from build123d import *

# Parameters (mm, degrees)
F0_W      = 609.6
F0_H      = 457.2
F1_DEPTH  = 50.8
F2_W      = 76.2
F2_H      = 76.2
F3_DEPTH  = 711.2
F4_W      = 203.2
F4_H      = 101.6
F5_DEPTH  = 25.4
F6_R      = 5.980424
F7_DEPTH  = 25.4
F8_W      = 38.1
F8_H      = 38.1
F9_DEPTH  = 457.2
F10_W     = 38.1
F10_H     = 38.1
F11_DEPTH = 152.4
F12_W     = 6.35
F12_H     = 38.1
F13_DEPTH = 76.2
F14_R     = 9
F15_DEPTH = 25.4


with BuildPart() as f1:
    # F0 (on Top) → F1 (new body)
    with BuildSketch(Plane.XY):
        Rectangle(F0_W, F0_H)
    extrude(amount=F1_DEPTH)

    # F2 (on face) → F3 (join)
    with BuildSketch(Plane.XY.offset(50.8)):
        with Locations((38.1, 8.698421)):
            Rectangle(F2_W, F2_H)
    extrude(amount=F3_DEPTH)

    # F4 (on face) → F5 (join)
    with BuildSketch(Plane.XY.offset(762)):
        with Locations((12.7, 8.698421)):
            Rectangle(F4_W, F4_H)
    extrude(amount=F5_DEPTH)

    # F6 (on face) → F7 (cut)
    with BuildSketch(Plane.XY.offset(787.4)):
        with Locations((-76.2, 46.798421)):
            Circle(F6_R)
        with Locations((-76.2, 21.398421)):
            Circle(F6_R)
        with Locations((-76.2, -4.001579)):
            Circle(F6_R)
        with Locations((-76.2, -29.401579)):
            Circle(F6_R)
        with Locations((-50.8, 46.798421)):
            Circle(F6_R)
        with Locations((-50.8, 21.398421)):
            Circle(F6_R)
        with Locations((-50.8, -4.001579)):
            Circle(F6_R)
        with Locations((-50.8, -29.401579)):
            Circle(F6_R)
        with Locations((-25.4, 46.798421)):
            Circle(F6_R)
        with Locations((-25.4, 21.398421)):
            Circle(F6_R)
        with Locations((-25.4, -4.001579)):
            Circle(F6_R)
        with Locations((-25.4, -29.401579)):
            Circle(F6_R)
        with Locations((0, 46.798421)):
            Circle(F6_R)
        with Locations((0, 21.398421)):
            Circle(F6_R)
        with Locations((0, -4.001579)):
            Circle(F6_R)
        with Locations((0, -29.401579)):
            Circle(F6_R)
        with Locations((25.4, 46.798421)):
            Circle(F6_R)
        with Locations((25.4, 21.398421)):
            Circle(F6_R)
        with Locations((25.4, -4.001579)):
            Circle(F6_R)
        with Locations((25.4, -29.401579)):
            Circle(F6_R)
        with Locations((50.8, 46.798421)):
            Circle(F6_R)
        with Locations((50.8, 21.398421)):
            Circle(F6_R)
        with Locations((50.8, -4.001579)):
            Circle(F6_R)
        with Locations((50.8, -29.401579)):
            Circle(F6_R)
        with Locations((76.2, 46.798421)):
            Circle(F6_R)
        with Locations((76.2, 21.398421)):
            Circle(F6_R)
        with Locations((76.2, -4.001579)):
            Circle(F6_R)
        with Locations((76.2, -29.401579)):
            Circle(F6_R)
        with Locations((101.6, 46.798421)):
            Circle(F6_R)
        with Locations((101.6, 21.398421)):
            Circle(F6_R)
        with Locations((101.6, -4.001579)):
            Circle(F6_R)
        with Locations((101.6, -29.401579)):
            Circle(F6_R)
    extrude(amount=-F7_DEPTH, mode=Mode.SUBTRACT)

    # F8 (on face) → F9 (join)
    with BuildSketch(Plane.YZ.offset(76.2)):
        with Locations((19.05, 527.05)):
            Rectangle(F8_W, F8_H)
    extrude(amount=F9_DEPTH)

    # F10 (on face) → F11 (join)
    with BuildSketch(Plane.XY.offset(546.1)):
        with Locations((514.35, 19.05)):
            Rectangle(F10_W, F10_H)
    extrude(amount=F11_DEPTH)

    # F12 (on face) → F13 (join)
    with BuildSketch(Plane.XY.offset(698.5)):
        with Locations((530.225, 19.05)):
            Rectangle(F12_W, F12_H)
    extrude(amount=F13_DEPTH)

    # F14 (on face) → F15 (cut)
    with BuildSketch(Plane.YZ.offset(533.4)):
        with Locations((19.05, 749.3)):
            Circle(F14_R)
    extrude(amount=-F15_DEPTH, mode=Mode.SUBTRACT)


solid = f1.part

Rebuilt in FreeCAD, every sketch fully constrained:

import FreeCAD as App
import Part
import Sketcher
Q = App.Units.Quantity

doc = App.newDocument("Part")
body = doc.addObject("PartDesign::Body", "Body")

# Sketch on XY plane
sketch1 = body.newObject("Sketcher::SketchObject", "Sketch")
sketch1.AttachmentSupport = (doc.getObject("XY_Plane"), [""])
sketch1.MapMode = "FlatFace"
sketch1.addGeometry([
    Part.LineSegment(App.Vector(-305, 229, 0), App.Vector(-305, -229, 0)),
    Part.LineSegment(App.Vector(-305, -229, 0), App.Vector(305, -229, 0)),
    Part.LineSegment(App.Vector(305, -229, 0), App.Vector(305, 229, 0)),
    Part.LineSegment(App.Vector(305, 229, 0), App.Vector(-305, 229, 0)),
], False)
sketch1.addConstraint([
    Sketcher.Constraint("Coincident", 0, 2, 1, 1),
    Sketcher.Constraint("Coincident", 1, 2, 2, 1),
    Sketcher.Constraint("Coincident", 2, 2, 3, 1),
    Sketcher.Constraint("Coincident", 3, 2, 0, 1),
    Sketcher.Constraint("Vertical", 0),
    Sketcher.Constraint("Horizontal", 1),
    Sketcher.Constraint("Vertical", 2),
    Sketcher.Constraint("Horizontal", 3),
    Sketcher.Constraint("Symmetric", 0, 2, 2, 2, -1, 1),
    Sketcher.Constraint("DistanceX", 1, 1, 1, 2, Q("24 in")),
    Sketcher.Constraint("DistanceY", 0, 2, 0, 1, Q("18 in")),
])
pad1 = body.newObject("PartDesign::Pad", "Pad")
pad1.Profile = sketch1
pad1.Length = Q("2 in")

# Sketch on XY plane
sketch2 = body.newObject("Sketcher::SketchObject", "Sketch001")
sketch2.AttachmentSupport = (doc.getObject("XY_Plane"), [""])
sketch2.MapMode = "FlatFace"
sketch2.AttachmentOffset = App.Placement(App.Vector(0, 0, 2 * 25.4), App.Rotation())
sketch2.addGeometry([
    Part.LineSegment(App.Vector(0, 47, 0), App.Vector(0, -29, 0)),
    Part.LineSegment(App.Vector(0, -29, 0), App.Vector(76, -29, 0)),
    Part.LineSegment(App.Vector(76, -29, 0), App.Vector(76, 47, 0)),
    Part.LineSegment(App.Vector(76, 47, 0), App.Vector(0, 47, 0)),
], False)
sketch2.addConstraint([
    Sketcher.Constraint("Coincident", 0, 2, 1, 1),
    Sketcher.Constraint("Coincident", 1, 2, 2, 1),
    Sketcher.Constraint("Coincident", 2, 2, 3, 1),
    Sketcher.Constraint("Coincident", 3, 2, 0, 1),
    Sketcher.Constraint("Vertical", 0),
    Sketcher.Constraint("Horizontal", 1),
    Sketcher.Constraint("Vertical", 2),
    Sketcher.Constraint("Horizontal", 3),
    Sketcher.Constraint("PointOnObject", 0, 2, -2),
    Sketcher.Constraint("Equal", 3, 0),
    Sketcher.Constraint("DistanceX", 1, 1, 1, 2, Q("3 in")),
    Sketcher.Constraint("DistanceY", 0, 2, -1, 1, 29.401579),
])
pad2 = body.newObject("PartDesign::Pad", "Pad001")
pad2.Profile = sketch2
pad2.Length = Q("28 in")

# Sketch on XY plane
sketch3 = body.newObject("Sketcher::SketchObject", "Sketch002")
sketch3.AttachmentSupport = (doc.getObject("XY_Plane"), [""])
sketch3.MapMode = "FlatFace"
sketch3.AttachmentOffset = App.Placement(App.Vector(0, 0, 30 * 25.4), App.Rotation())
sketch3.addGeometry([
    Part.LineSegment(App.Vector(-89, 59, 0), App.Vector(-89, -42, 0)),
    Part.LineSegment(App.Vector(-89, -42, 0), App.Vector(114, -42, 0)),
    Part.LineSegment(App.Vector(114, -42, 0), App.Vector(114, 59, 0)),
    Part.LineSegment(App.Vector(114, 59, 0), App.Vector(-89, 59, 0)),
], False)
sketch3.addConstraint([
    Sketcher.Constraint("Coincident", 0, 2, 1, 1),
    Sketcher.Constraint("Coincident", 1, 2, 2, 1),
    Sketcher.Constraint("Coincident", 2, 2, 3, 1),
    Sketcher.Constraint("Coincident", 3, 2, 0, 1),
    Sketcher.Constraint("Vertical", 0),
    Sketcher.Constraint("Horizontal", 1),
    Sketcher.Constraint("Vertical", 2),
    Sketcher.Constraint("Horizontal", 3),
    Sketcher.Constraint("DistanceX", 1, 1, 1, 2, Q("8 in")),
    Sketcher.Constraint("DistanceY", 0, 2, 0, 1, Q("4 in")),
    Sketcher.Constraint("DistanceX", 0, 2, -1, 1, Q("3.5 in")),
    Sketcher.Constraint("DistanceY", 0, 2, -1, 1, 42.101579),
])
pad3 = body.newObject("PartDesign::Pad", "Pad002")
pad3.Profile = sketch3
pad3.Length = Q("1 in")

# Sketch on XY plane
sketch4 = body.newObject("Sketcher::SketchObject", "Sketch003")
sketch4.AttachmentSupport = (doc.getObject("XY_Plane"), [""])
sketch4.MapMode = "FlatFace"
sketch4.AttachmentOffset = App.Placement(App.Vector(0, 0, 31 * 25.4), App.Rotation())
sketch4.addGeometry([
    Part.Circle(App.Vector(-76, 47, 0), App.Vector(0, 0, 1), 6),  # 0
    Part.Circle(App.Vector(-76, 21, 0), App.Vector(0, 0, 1), 6),  # 1
    Part.Circle(App.Vector(-76, -4, 0), App.Vector(0, 0, 1), 6),  # 2
    Part.Circle(App.Vector(-76, -29, 0), App.Vector(0, 0, 1), 6),  # 3
    Part.Circle(App.Vector(-51, 47, 0), App.Vector(0, 0, 1), 6),  # 4
    Part.Circle(App.Vector(-51, 21, 0), App.Vector(0, 0, 1), 6),  # 5
    Part.Circle(App.Vector(-51, -4, 0), App.Vector(0, 0, 1), 6),  # 6
    Part.Circle(App.Vector(-51, -29, 0), App.Vector(0, 0, 1), 6),  # 7
    Part.Circle(App.Vector(-25, 47, 0), App.Vector(0, 0, 1), 6),  # 8
    Part.Circle(App.Vector(-25, 21, 0), App.Vector(0, 0, 1), 6),  # 9
    Part.Circle(App.Vector(-25, -4, 0), App.Vector(0, 0, 1), 6),  # 10
    Part.Circle(App.Vector(-25, -29, 0), App.Vector(0, 0, 1), 6),  # 11
    Part.Circle(App.Vector(0, 47, 0), App.Vector(0, 0, 1), 6),  # 12
    Part.Circle(App.Vector(0, 21, 0), App.Vector(0, 0, 1), 6),  # 13
    Part.Circle(App.Vector(0, -4, 0), App.Vector(0, 0, 1), 6),  # 14
    Part.Circle(App.Vector(0, -29, 0), App.Vector(0, 0, 1), 6),  # 15
    Part.Circle(App.Vector(25, 47, 0), App.Vector(0, 0, 1), 6),  # 16
    Part.Circle(App.Vector(25, 21, 0), App.Vector(0, 0, 1), 6),  # 17
    Part.Circle(App.Vector(25, -4, 0), App.Vector(0, 0, 1), 6),  # 18
    Part.Circle(App.Vector(25, -29, 0), App.Vector(0, 0, 1), 6),  # 19
    Part.Circle(App.Vector(51, 47, 0), App.Vector(0, 0, 1), 6),  # 20
    Part.Circle(App.Vector(51, 21, 0), App.Vector(0, 0, 1), 6),  # 21
    Part.Circle(App.Vector(51, -4, 0), App.Vector(0, 0, 1), 6),  # 22
    Part.Circle(App.Vector(51, -29, 0), App.Vector(0, 0, 1), 6),  # 23
    Part.Circle(App.Vector(76, 47, 0), App.Vector(0, 0, 1), 6),  # 24
    Part.Circle(App.Vector(76, 21, 0), App.Vector(0, 0, 1), 6),  # 25
    Part.Circle(App.Vector(76, -4, 0), App.Vector(0, 0, 1), 6),  # 26
    Part.Circle(App.Vector(76, -29, 0), App.Vector(0, 0, 1), 6),  # 27
    Part.Circle(App.Vector(102, 47, 0), App.Vector(0, 0, 1), 6),  # 28
    Part.Circle(App.Vector(102, 21, 0), App.Vector(0, 0, 1), 6),  # 29
    Part.Circle(App.Vector(102, -4, 0), App.Vector(0, 0, 1), 6),  # 30
    Part.Circle(App.Vector(102, -29, 0), App.Vector(0, 0, 1), 6),  # 31
], False)
sketch4.addConstraint([
    Sketcher.Constraint("Equal", 0, 1),
    Sketcher.Constraint("Equal", 1, 2),
    Sketcher.Constraint("Equal", 2, 3),
    Sketcher.Constraint("Equal", 3, 4),
    Sketcher.Constraint("Equal", 4, 5),
    Sketcher.Constraint("Equal", 5, 6),
    Sketcher.Constraint("Equal", 6, 7),
    Sketcher.Constraint("Equal", 7, 8),
    Sketcher.Constraint("Equal", 8, 9),
    Sketcher.Constraint("Equal", 9, 10),
    Sketcher.Constraint("Equal", 10, 11),
    Sketcher.Constraint("Equal", 11, 12),
    Sketcher.Constraint("Equal", 12, 13),
    Sketcher.Constraint("Equal", 13, 14),
    Sketcher.Constraint("Equal", 14, 15),
    Sketcher.Constraint("Equal", 15, 16),
    Sketcher.Constraint("Equal", 16, 17),
    Sketcher.Constraint("Equal", 17, 18),
    Sketcher.Constraint("Equal", 18, 19),
    Sketcher.Constraint("Equal", 19, 20),
    Sketcher.Constraint("Equal", 20, 21),
    Sketcher.Constraint("Equal", 21, 22),
    Sketcher.Constraint("Equal", 22, 23),
    Sketcher.Constraint("Equal", 23, 24),
    Sketcher.Constraint("Equal", 24, 25),
    Sketcher.Constraint("Equal", 25, 26),
    Sketcher.Constraint("Equal", 26, 27),
    Sketcher.Constraint("Equal", 27, 28),
    Sketcher.Constraint("Equal", 28, 29),
    Sketcher.Constraint("Equal", 29, 30),
    Sketcher.Constraint("Equal", 30, 31),
    Sketcher.Constraint("Symmetric", 8, 3, 16, 3, -2),
    Sketcher.Constraint("Symmetric", 9, 3, 17, 3, -2),
    Sketcher.Constraint("Symmetric", 10, 3, 18, 3, -2),
    Sketcher.Constraint("Symmetric", 11, 3, 19, 3, -2),
    Sketcher.Constraint("Symmetric", 4, 3, 20, 3, -2),
    Sketcher.Constraint("Symmetric", 5, 3, 21, 3, -2),
    Sketcher.Constraint("Symmetric", 6, 3, 22, 3, -2),
    Sketcher.Constraint("Symmetric", 7, 3, 23, 3, -2),
    Sketcher.Constraint("Symmetric", 0, 3, 24, 3, -2),
    Sketcher.Constraint("Symmetric", 1, 3, 25, 3, -2),
    Sketcher.Constraint("Symmetric", 2, 3, 26, 3, -2),
    Sketcher.Constraint("Symmetric", 3, 3, 27, 3, -2),
    Sketcher.Constraint("PointOnObject", 12, 3, -2),
    Sketcher.Constraint("PointOnObject", 13, 3, -2),
    Sketcher.Constraint("PointOnObject", 14, 3, -2),
    Sketcher.Constraint("PointOnObject", 15, 3, -2),
    Sketcher.Constraint("Horizontal", 0, 3, 4, 3),
    Sketcher.Constraint("Horizontal", 1, 3, 5, 3),
    Sketcher.Constraint("Horizontal", 2, 3, 6, 3),
    Sketcher.Constraint("Horizontal", 3, 3, 7, 3),
    Sketcher.Constraint("Horizontal", 4, 3, 8, 3),
    Sketcher.Constraint("Horizontal", 5, 3, 9, 3),
    Sketcher.Constraint("Horizontal", 6, 3, 10, 3),
    Sketcher.Constraint("Horizontal", 7, 3, 11, 3),
    Sketcher.Constraint("Horizontal", 8, 3, 12, 3),
    Sketcher.Constraint("Horizontal", 9, 3, 13, 3),
    Sketcher.Constraint("Horizontal", 10, 3, 14, 3),
    Sketcher.Constraint("Horizontal", 11, 3, 15, 3),
    Sketcher.Constraint("Horizontal", 24, 3, 28, 3),
    Sketcher.Constraint("Horizontal", 25, 3, 29, 3),
    Sketcher.Constraint("Horizontal", 26, 3, 30, 3),
    Sketcher.Constraint("Horizontal", 27, 3, 31, 3),
    Sketcher.Constraint("Vertical", 0, 3, 1, 3),
    Sketcher.Constraint("Vertical", 1, 3, 2, 3),
    Sketcher.Constraint("Vertical", 2, 3, 3, 3),
    Sketcher.Constraint("Vertical", 4, 3, 5, 3),
    Sketcher.Constraint("Vertical", 5, 3, 6, 3),
    Sketcher.Constraint("Vertical", 6, 3, 7, 3),
    Sketcher.Constraint("Vertical", 8, 3, 9, 3),
    Sketcher.Constraint("Vertical", 9, 3, 10, 3),
    Sketcher.Constraint("Vertical", 10, 3, 11, 3),
    Sketcher.Constraint("Vertical", 28, 3, 29, 3),
    Sketcher.Constraint("Vertical", 29, 3, 30, 3),
    Sketcher.Constraint("Vertical", 30, 3, 31, 3),
    Sketcher.Constraint("DistanceX", 0, 3, -1, 1, Q("3 in")),
    Sketcher.Constraint("DistanceX", 4, 3, -1, 1, Q("2 in")),
    Sketcher.Constraint("DistanceX", 8, 3, -1, 1, Q("1 in")),
    Sketcher.Constraint("DistanceX", -1, 1, 28, 3, Q("4 in")),
    Sketcher.Constraint("DistanceY", 1, 3, 0, 3, Q("1 in")),
    Sketcher.Constraint("DistanceY", 2, 3, 1, 3, Q("1 in")),
    Sketcher.Constraint("DistanceY", 3, 3, 2, 3, Q("1 in")),
    Sketcher.Constraint("Diameter", 0, 11.960848),
    Sketcher.Constraint("DistanceY", -1, 1, 0, 3, 46.798421),
])
pocket1 = body.newObject("PartDesign::Pocket", "Pocket")
pocket1.Profile = sketch4
pocket1.Length = Q("1 in")

# Sketch on YZ plane
sketch5 = body.newObject("Sketcher::SketchObject", "Sketch004")
sketch5.AttachmentSupport = (doc.getObject("YZ_Plane"), [""])
sketch5.MapMode = "FlatFace"
sketch5.AttachmentOffset = App.Placement(App.Vector(0, 0, 3 * 25.4), App.Rotation())
sketch5.addGeometry([
    Part.LineSegment(App.Vector(0, 546, 0), App.Vector(0, 508, 0)),
    Part.LineSegment(App.Vector(0, 508, 0), App.Vector(38, 508, 0)),
    Part.LineSegment(App.Vector(38, 508, 0), App.Vector(38, 546, 0)),
    Part.LineSegment(App.Vector(38, 546, 0), App.Vector(0, 546, 0)),
], False)
sketch5.addConstraint([
    Sketcher.Constraint("Coincident", 0, 2, 1, 1),
    Sketcher.Constraint("Coincident", 1, 2, 2, 1),
    Sketcher.Constraint("Coincident", 2, 2, 3, 1),
    Sketcher.Constraint("Coincident", 3, 2, 0, 1),
    Sketcher.Constraint("Vertical", 0),
    Sketcher.Constraint("Horizontal", 1),
    Sketcher.Constraint("Vertical", 2),
    Sketcher.Constraint("Horizontal", 3),
    Sketcher.Constraint("PointOnObject", 0, 2, -2),
    Sketcher.Constraint("Equal", 3, 0),
    Sketcher.Constraint("DistanceX", 1, 1, 1, 2, Q("1.5 in")),
    Sketcher.Constraint("DistanceY", -1, 1, 0, 2, Q("20 in")),
])
pad4 = body.newObject("PartDesign::Pad", "Pad003")
pad4.Profile = sketch5
pad4.Length = Q("18 in")

# Sketch on XY plane
sketch6 = body.newObject("Sketcher::SketchObject", "Sketch005")
sketch6.AttachmentSupport = (doc.getObject("XY_Plane"), [""])
sketch6.MapMode = "FlatFace"
sketch6.AttachmentOffset = App.Placement(App.Vector(0, 0, 21.5 * 25.4), App.Rotation())
sketch6.addGeometry([
    Part.LineSegment(App.Vector(495, 38, 0), App.Vector(495, 0, 0)),
    Part.LineSegment(App.Vector(495, 0, 0), App.Vector(533, 0, 0)),
    Part.LineSegment(App.Vector(533, 0, 0), App.Vector(533, 38, 0)),
    Part.LineSegment(App.Vector(533, 38, 0), App.Vector(495, 38, 0)),
], False)
sketch6.addConstraint([
    Sketcher.Constraint("Coincident", 0, 2, 1, 1),
    Sketcher.Constraint("Coincident", 1, 2, 2, 1),
    Sketcher.Constraint("Coincident", 2, 2, 3, 1),
    Sketcher.Constraint("Coincident", 3, 2, 0, 1),
    Sketcher.Constraint("Vertical", 0),
    Sketcher.Constraint("Horizontal", 1),
    Sketcher.Constraint("Vertical", 2),
    Sketcher.Constraint("Horizontal", 3),
    Sketcher.Constraint("PointOnObject", 0, 2, -1),
    Sketcher.Constraint("Equal", 3, 0),
    Sketcher.Constraint("DistanceX", 1, 1, 1, 2, Q("1.5 in")),
    Sketcher.Constraint("DistanceX", -1, 1, 1, 2, Q("21 in")),
])
pad5 = body.newObject("PartDesign::Pad", "Pad004")
pad5.Profile = sketch6
pad5.Length = Q("6 in")

# Sketch on XY plane
sketch7 = body.newObject("Sketcher::SketchObject", "Sketch006")
sketch7.AttachmentSupport = (doc.getObject("XY_Plane"), [""])
sketch7.MapMode = "FlatFace"
sketch7.AttachmentOffset = App.Placement(App.Vector(0, 0, 27.5 * 25.4), App.Rotation())
sketch7.addGeometry([
    Part.LineSegment(App.Vector(527, 38, 0), App.Vector(527, 0, 0)),
    Part.LineSegment(App.Vector(527, 0, 0), App.Vector(533, 0, 0)),
    Part.LineSegment(App.Vector(533, 0, 0), App.Vector(533, 38, 0)),
    Part.LineSegment(App.Vector(533, 38, 0), App.Vector(527, 38, 0)),
], False)
sketch7.addConstraint([
    Sketcher.Constraint("Coincident", 0, 2, 1, 1),
    Sketcher.Constraint("Coincident", 1, 2, 2, 1),
    Sketcher.Constraint("Coincident", 2, 2, 3, 1),
    Sketcher.Constraint("Coincident", 3, 2, 0, 1),
    Sketcher.Constraint("Vertical", 0),
    Sketcher.Constraint("Horizontal", 1),
    Sketcher.Constraint("Vertical", 2),
    Sketcher.Constraint("Horizontal", 3),
    Sketcher.Constraint("PointOnObject", 0, 2, -1),
    Sketcher.Constraint("DistanceY", 0, 2, 0, 1, Q("1.5 in")),
    Sketcher.Constraint("DistanceX", -1, 1, 1, 2, Q("21 in")),
    Sketcher.Constraint("DistanceX", 1, 1, 1, 2, Q("0.25 in")),
])
pad6 = body.newObject("PartDesign::Pad", "Pad005")
pad6.Profile = sketch7
pad6.Length = Q("3 in")

# Sketch on YZ plane
sketch8 = body.newObject("Sketcher::SketchObject", "Sketch007")
sketch8.AttachmentSupport = (doc.getObject("YZ_Plane"), [""])
sketch8.MapMode = "FlatFace"
sketch8.AttachmentOffset = App.Placement(App.Vector(0, 0, 21 * 25.4), App.Rotation())
sketch8.addGeometry(Part.Circle(App.Vector(19, 749, 0), App.Vector(0, 0, 1), 9), False)
sketch8.addConstraint([
    Sketcher.Constraint("DistanceY", -1, 1, 0, 3, Q("29.5 in")),
    Sketcher.Constraint("Diameter", 0, 18.0),
    Sketcher.Constraint("DistanceX", -1, 1, 0, 3, Q("0.75 in")),
])
pocket2 = body.newObject("PartDesign::Pocket", "Pocket001")
pocket2.Profile = sketch8
pocket2.Length = Q("1 in")

doc.recompute()
